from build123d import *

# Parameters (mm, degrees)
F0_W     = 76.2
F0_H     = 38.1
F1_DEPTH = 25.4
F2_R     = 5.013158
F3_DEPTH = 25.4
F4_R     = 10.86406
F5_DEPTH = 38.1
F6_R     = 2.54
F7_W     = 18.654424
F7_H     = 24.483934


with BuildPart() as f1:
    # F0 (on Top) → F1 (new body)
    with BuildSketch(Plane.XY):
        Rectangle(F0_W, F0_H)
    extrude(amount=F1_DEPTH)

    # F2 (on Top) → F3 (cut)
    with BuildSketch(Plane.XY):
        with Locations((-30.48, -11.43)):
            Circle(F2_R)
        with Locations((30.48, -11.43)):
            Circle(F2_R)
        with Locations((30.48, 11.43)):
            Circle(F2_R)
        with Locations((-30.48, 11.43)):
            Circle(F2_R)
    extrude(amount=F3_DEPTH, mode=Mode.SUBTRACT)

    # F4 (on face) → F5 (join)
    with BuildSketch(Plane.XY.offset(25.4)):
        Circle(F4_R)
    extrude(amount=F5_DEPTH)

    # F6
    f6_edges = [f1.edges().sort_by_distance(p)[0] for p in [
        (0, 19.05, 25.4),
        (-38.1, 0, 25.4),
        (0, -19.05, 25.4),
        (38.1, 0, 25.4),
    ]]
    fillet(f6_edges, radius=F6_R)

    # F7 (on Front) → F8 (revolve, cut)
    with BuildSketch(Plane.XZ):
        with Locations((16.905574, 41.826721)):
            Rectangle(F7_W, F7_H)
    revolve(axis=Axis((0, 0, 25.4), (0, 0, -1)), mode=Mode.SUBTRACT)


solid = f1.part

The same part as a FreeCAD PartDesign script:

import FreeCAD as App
import Part
import Sketcher
Q = App.Units.Quantity


def edges_at(feature, points):
    """Names of the edges that pass closest to the given points."""
    edges = feature.Shape.Edges
    near = lambda p: min(range(len(edges)), key=lambda i: edges[i].distToShape(Part.Vertex(*p))[0])
    return sorted({f"Edge{near(p) + 1}" for p in points})


def add_polygon(sketch, points):
    """Adds a closed chain of lines whose ends are joined by coincident constraints."""
    first, n = sketch.GeometryCount, len(points)
    for a, b in zip(points, points[1:] + points[:1]):
        sketch.addGeometry(Part.LineSegment(App.Vector(*a, 0), App.Vector(*b, 0)), False)
    for i in range(n):
        sketch.addConstraint(Sketcher.Constraint("Coincident", first + i, 2, first + (i + 1) % n, 1))

doc = App.newDocument("Part")
body = doc.addObject("PartDesign::Body", "Body")

sketch1 = doc.addObject("Sketcher::SketchObject", "Sketch")
body.addObject(sketch1)
sketch1.AttachmentSupport = (doc.XY_Plane, [""])
sketch1.MapMode = "FlatFace"
add_polygon(sketch1, [(-38.1, 19.05), (-38.1, -19.05), (38.1, -19.05), (38.1, 19.05)])
sketch1.addConstraint(Sketcher.Constraint("Vertical", 0))
sketch1.addConstraint(Sketcher.Constraint("Horizontal", 1))
sketch1.addConstraint(Sketcher.Constraint("Vertical", 2))
sketch1.addConstraint(Sketcher.Constraint("Horizontal", 3))
sketch1.addConstraint(Sketcher.Constraint("Symmetric", 0, 2, 2, 2, -1, 1))
sketch1.addConstraint(Sketcher.Constraint("DistanceX", 1, 1, 1, 2, Q("3 in")))
sketch1.addConstraint(Sketcher.Constraint("DistanceY", 0, 2, 0, 1, Q("1.5 in")))
pad1 = doc.addObject("PartDesign::Pad", "Pad")
body.addObject(pad1)
pad1.Profile = sketch1
pad1.Length = Q("1 in")

sketch2 = doc.addObject("Sketcher::SketchObject", "Sketch001")
body.addObject(sketch2)
sketch2.AttachmentSupport = (doc.XY_Plane, [""])
sketch2.MapMode = "FlatFace"
sketch2.addGeometry(Part.Circle(App.Vector(-30.48, -11.43, 0), App.Vector(0, 0, 1), 5.013158), False)
sketch2.addGeometry(Part.Circle(App.Vector(30.48, -11.43, 0), App.Vector(0, 0, 1), 5.013158), False)
sketch2.addGeometry(Part.Circle(App.Vector(30.48, 11.43, 0), App.Vector(0, 0, 1), 5.013158), False)
sketch2.addGeometry(Part.Circle(App.Vector(-30.48, 11.43, 0), App.Vector(0, 0, 1), 5.013158), False)
sketch2.addConstraint(Sketcher.Constraint("Equal", 0, 1))
sketch2.addConstraint(Sketcher.Constraint("Equal", 1, 2))
sketch2.addConstraint(Sketcher.Constraint("Equal", 2, 3))
sketch2.addConstraint(Sketcher.Constraint("Symmetric", 0, 3, 2, 3, -1, 1))
sketch2.addConstraint(Sketcher.Constraint("Symmetric", 1, 3, 3, 3, -1, 1))
sketch2.addConstraint(Sketcher.Constraint("Symmetric", 0, 3, 1, 3, -2))
sketch2.addConstraint(Sketcher.Constraint("DistanceX", 0, 3, -1, 1, Q("1.2 in")))
sketch2.addConstraint(Sketcher.Constraint("DistanceY", 1, 3, 2, 3, Q("0.9 in")))
sketch2.addConstraint(Sketcher.Constraint("Diameter", 0, Q("10.026316 mm")))
pocket1 = doc.addObject("PartDesign::Pocket", "Pocket")
body.addObject(pocket1)
pocket1.Profile = sketch2
pocket1.Length = Q("1 in")
pocket1.Reversed = True

sketch3 = doc.addObject("Sketcher::SketchObject", "Sketch002")
body.addObject(sketch3)
sketch3.AttachmentSupport = (doc.XY_Plane, [""])
sketch3.MapMode = "FlatFace"
sketch3.AttachmentOffset = App.Placement(App.Vector(0, 0, 1 * 25.4), App.Rotation())
sketch3.addGeometry(Part.Circle(App.Vector(0, 0, 0), App.Vector(0, 0, 1), 10.86406), False)
sketch3.addConstraint(Sketcher.Constraint("Coincident", 0, 3, -1, 1))
sketch3.addConstraint(Sketcher.Constraint("Diameter", 0, Q("21.72812 mm")))
pad2 = doc.addObject("PartDesign::Pad", "Pad001")
body.addObject(pad2)
pad2.Profile = sketch3
pad2.Length = Q("1.5 in")
doc.recompute()

fillet = doc.addObject("PartDesign::Fillet", "Fillet")
body.addObject(fillet)
fillet.Base = (pad2, edges_at(pad2, [
    (0, 19.05, 25.4),
    (-38.1, 0, 25.4),
    (0, -19.05, 25.4),
    (38.1, 0, 25.4),
]))
fillet.Radius = Q("0.1 in")

sketch4 = doc.addObject("Sketcher::SketchObject", "Sketch003")
body.addObject(sketch4)
sketch4.AttachmentSupport = (doc.XZ_Plane, [""])
sketch4.MapMode = "FlatFace"
add_polygon(sketch4, [(7.578362, 54.068688), (7.578362, 29.584754), (26.232786, 29.584754), (26.232786, 54.068688)])
sketch4.addConstraint(Sketcher.Constraint("Vertical", 0))
sketch4.addConstraint(Sketcher.Constraint("Horizontal", 1))
sketch4.addConstraint(Sketcher.Constraint("Vertical", 2))
sketch4.addConstraint(Sketcher.Constraint("Horizontal", 3))
sketch4.addConstraint(Sketcher.Constraint("DistanceX", 1, 1, 1, 2, Q("18.654424 mm")))
sketch4.addConstraint(Sketcher.Constraint("DistanceY", 0, 2, 0, 1, Q("24.483934 mm")))
sketch4.addConstraint(Sketcher.Constraint("DistanceY", -1, 1, 2, 2, Q("54.068688 mm")))
sketch4.addConstraint(Sketcher.Constraint("DistanceX", -1, 1, 0, 2, Q("7.578362 mm")))
groove = doc.addObject("PartDesign::Groove", "Groove")
body.addObject(groove)
groove.Profile = sketch4
groove.ReferenceAxis = (sketch4, ["V_Axis"])
groove.Angle = 360

doc.recompute()
